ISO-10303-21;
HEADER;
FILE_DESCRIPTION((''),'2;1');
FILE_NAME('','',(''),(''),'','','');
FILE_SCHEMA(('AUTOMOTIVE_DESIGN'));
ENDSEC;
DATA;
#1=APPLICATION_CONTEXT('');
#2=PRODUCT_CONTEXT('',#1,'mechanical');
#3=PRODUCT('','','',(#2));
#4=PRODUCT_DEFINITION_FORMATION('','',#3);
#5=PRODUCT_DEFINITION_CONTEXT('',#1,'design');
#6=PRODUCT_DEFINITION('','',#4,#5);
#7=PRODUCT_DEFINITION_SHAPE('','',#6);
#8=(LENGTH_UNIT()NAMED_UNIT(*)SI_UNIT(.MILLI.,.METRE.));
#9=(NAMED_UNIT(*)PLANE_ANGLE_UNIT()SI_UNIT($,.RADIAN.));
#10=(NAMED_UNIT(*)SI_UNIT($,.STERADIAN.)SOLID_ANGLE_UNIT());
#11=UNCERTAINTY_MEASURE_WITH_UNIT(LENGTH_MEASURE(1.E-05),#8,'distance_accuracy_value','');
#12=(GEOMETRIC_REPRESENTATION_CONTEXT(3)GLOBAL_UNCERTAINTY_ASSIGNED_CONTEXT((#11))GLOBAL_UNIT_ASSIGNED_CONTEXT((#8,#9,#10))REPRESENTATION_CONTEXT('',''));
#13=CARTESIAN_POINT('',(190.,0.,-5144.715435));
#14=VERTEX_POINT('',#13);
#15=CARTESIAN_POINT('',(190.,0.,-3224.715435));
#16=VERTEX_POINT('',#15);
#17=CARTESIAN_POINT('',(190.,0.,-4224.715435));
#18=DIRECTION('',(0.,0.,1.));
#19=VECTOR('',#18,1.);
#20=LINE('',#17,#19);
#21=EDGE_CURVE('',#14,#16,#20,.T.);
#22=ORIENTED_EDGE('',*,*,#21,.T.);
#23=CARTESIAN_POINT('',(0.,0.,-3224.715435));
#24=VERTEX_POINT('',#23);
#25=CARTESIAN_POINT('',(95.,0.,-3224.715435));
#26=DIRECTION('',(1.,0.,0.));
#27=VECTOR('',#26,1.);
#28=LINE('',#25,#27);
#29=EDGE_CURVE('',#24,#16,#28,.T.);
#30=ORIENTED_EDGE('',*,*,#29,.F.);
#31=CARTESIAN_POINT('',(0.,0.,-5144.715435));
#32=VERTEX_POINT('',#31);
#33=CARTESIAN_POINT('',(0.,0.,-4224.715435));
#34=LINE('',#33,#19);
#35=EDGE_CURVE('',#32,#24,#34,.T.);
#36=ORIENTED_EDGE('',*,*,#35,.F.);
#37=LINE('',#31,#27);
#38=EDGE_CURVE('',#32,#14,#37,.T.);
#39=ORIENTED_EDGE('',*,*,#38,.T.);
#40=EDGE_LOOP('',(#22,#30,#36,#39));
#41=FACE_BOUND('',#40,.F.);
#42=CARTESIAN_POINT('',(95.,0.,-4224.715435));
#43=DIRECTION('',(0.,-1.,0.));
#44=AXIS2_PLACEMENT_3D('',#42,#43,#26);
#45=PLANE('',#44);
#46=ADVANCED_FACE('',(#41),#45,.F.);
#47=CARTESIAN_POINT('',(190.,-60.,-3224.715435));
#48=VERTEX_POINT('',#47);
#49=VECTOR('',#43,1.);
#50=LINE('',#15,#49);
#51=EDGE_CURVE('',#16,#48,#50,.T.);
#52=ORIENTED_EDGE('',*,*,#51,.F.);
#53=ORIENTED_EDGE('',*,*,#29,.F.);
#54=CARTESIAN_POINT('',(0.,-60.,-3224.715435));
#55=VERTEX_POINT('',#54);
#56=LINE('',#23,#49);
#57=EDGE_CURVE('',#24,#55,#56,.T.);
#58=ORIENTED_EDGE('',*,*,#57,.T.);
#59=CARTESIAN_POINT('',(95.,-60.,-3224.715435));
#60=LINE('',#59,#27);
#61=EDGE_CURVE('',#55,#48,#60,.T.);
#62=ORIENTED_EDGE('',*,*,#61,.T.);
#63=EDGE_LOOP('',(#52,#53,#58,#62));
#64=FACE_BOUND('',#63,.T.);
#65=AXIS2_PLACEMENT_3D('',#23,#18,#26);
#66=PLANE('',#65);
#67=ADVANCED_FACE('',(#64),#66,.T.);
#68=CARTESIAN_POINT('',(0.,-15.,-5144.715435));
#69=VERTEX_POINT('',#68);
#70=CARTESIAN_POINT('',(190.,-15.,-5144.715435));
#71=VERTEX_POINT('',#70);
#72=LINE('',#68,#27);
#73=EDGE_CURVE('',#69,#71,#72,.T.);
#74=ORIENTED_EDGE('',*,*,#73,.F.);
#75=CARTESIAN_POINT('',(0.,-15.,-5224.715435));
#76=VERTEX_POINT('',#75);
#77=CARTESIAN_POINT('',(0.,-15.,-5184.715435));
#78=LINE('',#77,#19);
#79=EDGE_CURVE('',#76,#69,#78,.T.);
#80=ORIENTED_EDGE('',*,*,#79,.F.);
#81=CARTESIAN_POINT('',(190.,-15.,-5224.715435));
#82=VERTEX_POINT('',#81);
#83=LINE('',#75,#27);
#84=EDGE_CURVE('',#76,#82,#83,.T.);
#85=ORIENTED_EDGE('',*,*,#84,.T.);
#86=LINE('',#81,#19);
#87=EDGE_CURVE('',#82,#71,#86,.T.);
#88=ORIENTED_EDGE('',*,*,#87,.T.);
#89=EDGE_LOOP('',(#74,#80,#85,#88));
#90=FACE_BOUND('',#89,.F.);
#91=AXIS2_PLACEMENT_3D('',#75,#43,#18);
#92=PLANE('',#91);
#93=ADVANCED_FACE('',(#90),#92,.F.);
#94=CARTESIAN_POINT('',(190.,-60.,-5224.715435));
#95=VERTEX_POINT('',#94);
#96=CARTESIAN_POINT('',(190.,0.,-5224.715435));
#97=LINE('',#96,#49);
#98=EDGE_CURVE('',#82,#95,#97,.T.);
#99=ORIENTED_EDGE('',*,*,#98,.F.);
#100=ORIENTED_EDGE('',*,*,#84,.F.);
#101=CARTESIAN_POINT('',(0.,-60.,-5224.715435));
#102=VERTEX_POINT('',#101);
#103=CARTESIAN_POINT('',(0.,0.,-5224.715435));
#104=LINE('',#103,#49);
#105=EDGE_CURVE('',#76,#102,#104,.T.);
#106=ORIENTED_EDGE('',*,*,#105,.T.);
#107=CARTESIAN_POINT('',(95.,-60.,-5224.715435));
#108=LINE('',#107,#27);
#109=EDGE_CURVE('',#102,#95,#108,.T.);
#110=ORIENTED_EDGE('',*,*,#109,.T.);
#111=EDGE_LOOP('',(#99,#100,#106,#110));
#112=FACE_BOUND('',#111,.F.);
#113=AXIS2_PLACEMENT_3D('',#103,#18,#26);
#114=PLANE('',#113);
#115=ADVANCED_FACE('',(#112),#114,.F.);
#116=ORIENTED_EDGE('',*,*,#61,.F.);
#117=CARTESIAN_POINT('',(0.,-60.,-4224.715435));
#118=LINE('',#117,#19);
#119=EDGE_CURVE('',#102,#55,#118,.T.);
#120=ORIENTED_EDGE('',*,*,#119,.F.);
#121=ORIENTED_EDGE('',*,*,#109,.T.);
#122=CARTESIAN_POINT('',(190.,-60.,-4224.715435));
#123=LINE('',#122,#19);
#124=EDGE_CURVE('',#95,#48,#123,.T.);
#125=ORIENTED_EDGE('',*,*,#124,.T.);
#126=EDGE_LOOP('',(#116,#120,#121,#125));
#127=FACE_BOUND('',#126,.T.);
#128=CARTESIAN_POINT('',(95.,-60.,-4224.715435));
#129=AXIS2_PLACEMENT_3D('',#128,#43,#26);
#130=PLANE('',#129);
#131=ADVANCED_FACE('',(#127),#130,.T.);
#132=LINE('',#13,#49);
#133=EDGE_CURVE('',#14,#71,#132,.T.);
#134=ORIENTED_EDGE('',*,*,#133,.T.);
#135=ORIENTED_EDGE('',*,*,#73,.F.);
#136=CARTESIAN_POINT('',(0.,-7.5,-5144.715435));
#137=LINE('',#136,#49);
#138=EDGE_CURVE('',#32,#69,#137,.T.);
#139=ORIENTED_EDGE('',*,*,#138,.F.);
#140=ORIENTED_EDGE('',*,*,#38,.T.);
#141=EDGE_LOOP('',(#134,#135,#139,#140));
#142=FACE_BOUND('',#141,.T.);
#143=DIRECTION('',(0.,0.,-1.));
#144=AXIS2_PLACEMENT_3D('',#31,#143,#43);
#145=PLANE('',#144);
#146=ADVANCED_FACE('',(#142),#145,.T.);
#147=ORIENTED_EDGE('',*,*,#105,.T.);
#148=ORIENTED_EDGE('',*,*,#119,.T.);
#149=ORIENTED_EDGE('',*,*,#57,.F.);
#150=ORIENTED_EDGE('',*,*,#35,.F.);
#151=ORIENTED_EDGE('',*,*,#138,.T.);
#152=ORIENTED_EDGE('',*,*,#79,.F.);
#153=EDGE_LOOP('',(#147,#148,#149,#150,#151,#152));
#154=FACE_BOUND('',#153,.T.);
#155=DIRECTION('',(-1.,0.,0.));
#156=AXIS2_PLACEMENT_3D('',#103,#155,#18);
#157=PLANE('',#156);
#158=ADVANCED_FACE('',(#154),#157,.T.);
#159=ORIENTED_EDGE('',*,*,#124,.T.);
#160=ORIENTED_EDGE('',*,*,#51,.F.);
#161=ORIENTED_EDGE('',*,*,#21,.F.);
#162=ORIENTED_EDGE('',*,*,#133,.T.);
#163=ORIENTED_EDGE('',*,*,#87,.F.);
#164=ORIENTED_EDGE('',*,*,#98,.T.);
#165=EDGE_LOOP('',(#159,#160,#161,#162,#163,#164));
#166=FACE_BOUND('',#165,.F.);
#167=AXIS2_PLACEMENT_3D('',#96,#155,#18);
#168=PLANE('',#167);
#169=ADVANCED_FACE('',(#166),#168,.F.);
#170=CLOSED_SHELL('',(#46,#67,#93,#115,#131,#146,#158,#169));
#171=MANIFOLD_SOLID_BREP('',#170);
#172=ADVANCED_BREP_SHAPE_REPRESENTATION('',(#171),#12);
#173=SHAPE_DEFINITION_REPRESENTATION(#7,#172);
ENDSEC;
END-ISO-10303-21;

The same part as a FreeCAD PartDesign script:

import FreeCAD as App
import Part
import Sketcher

V = App.Vector
Q = App.Units.Quantity

doc = App.newDocument("Part")
body = doc.addObject("PartDesign::Body", "Body")

# Sketch on XZ plane
sketch1 = doc.addObject("Sketcher::SketchObject", "Sketch")
body.addObject(sketch1)
sketch1.AttachmentSupport = (doc.XZ_Plane, [""])
sketch1.MapMode = "FlatFace"
sketch1.addGeometry(Part.LineSegment(V(0, -3224.715435, 0), V(0, -5224.715435, 0)), False)
sketch1.addGeometry(Part.LineSegment(V(0, -5224.715435, 0), V(190, -5224.715435, 0)), False)
sketch1.addGeometry(Part.LineSegment(V(190, -5224.715435, 0), V(190, -3224.715435, 0)), False)
sketch1.addGeometry(Part.LineSegment(V(190, -3224.715435, 0), V(0, -3224.715435, 0)), False)
sketch1.addConstraint(Sketcher.Constraint("Coincident", 0, 2, 1, 1))
sketch1.addConstraint(Sketcher.Constraint("Coincident", 1, 2, 2, 1))
sketch1.addConstraint(Sketcher.Constraint("Coincident", 2, 2, 3, 1))
sketch1.addConstraint(Sketcher.Constraint("Coincident", 3, 2, 0, 1))
sketch1.addConstraint(Sketcher.Constraint("Vertical", 0))
sketch1.addConstraint(Sketcher.Constraint("Horizontal", 1))
sketch1.addConstraint(Sketcher.Constraint("Vertical", 2))
sketch1.addConstraint(Sketcher.Constraint("Horizontal", 3))
sketch1.addConstraint(Sketcher.Constraint("PointOnObject", 0, 2, -2))
sketch1.addConstraint(Sketcher.Constraint("DistanceX", 1, 1, 1, 2, Q("190 mm")))
sketch1.addConstraint(Sketcher.Constraint("DistanceY", 0, 2, 0, 1, Q("2000 mm")))
sketch1.addConstraint(Sketcher.Constraint("DistanceY", 0, 2, -1, 1, Q("5224.715435 mm")))
pad1 = doc.addObject("PartDesign::Pad", "Pad")
body.addObject(pad1)
pad1.Profile = sketch1
pad1.Length = 60

# Sketch on YZ plane
sketch2 = doc.addObject("Sketcher::SketchObject", "Sketch001")
body.addObject(sketch2)
sketch2.AttachmentSupport = (doc.YZ_Plane, [""])
sketch2.MapMode = "FlatFace"
sketch2.addGeometry(Part.LineSegment(V(0, -5144.715435, 0), V(0, -5224.715435, 0)), False)
sketch2.addGeometry(Part.LineSegment(V(0, -5224.715435, 0), V(-15, -5224.715435, 0)), False)
sketch2.addGeometry(Part.LineSegment(V(-15, -5224.715435, 0), V(-15, -5144.715435, 0)), False)
sketch2.addGeometry(Part.LineSegment(V(-15, -5144.715435, 0), V(0, -5144.715435, 0)), False)
sketch2.addConstraint(Sketcher.Constraint("Coincident", 0, 2, 1, 1))
sketch2.addConstraint(Sketcher.Constraint("Coincident", 1, 2, 2, 1))
sketch2.addConstraint(Sketcher.Constraint("Coincident", 2, 2, 3, 1))
sketch2.addConstraint(Sketcher.Constraint("Coincident", 3, 2, 0, 1))
sketch2.addConstraint(Sketcher.Constraint("Vertical", 0))
sketch2.addConstraint(Sketcher.Constraint("Horizontal", 1))
sketch2.addConstraint(Sketcher.Constraint("Vertical", 2))
sketch2.addConstraint(Sketcher.Constraint("Horizontal", 3))
sketch2.addConstraint(Sketcher.Constraint("PointOnObject", 0, 2, -2))
sketch2.addConstraint(Sketcher.Constraint("DistanceX", 1, 2, 1, 1, Q("15 mm")))
sketch2.addConstraint(Sketcher.Constraint("DistanceY", 0, 2, 0, 1, Q("80 mm")))
sketch2.addConstraint(Sketcher.Constraint("DistanceY", 0, 2, -1, 1, Q("5224.715435 mm")))
pocket1 = doc.addObject("PartDesign::Pocket", "Pocket")
body.addObject(pocket1)
pocket1.Profile = sketch2
pocket1.Type = "ThroughAll"
pocket1.Reversed = True

doc.recompute()
